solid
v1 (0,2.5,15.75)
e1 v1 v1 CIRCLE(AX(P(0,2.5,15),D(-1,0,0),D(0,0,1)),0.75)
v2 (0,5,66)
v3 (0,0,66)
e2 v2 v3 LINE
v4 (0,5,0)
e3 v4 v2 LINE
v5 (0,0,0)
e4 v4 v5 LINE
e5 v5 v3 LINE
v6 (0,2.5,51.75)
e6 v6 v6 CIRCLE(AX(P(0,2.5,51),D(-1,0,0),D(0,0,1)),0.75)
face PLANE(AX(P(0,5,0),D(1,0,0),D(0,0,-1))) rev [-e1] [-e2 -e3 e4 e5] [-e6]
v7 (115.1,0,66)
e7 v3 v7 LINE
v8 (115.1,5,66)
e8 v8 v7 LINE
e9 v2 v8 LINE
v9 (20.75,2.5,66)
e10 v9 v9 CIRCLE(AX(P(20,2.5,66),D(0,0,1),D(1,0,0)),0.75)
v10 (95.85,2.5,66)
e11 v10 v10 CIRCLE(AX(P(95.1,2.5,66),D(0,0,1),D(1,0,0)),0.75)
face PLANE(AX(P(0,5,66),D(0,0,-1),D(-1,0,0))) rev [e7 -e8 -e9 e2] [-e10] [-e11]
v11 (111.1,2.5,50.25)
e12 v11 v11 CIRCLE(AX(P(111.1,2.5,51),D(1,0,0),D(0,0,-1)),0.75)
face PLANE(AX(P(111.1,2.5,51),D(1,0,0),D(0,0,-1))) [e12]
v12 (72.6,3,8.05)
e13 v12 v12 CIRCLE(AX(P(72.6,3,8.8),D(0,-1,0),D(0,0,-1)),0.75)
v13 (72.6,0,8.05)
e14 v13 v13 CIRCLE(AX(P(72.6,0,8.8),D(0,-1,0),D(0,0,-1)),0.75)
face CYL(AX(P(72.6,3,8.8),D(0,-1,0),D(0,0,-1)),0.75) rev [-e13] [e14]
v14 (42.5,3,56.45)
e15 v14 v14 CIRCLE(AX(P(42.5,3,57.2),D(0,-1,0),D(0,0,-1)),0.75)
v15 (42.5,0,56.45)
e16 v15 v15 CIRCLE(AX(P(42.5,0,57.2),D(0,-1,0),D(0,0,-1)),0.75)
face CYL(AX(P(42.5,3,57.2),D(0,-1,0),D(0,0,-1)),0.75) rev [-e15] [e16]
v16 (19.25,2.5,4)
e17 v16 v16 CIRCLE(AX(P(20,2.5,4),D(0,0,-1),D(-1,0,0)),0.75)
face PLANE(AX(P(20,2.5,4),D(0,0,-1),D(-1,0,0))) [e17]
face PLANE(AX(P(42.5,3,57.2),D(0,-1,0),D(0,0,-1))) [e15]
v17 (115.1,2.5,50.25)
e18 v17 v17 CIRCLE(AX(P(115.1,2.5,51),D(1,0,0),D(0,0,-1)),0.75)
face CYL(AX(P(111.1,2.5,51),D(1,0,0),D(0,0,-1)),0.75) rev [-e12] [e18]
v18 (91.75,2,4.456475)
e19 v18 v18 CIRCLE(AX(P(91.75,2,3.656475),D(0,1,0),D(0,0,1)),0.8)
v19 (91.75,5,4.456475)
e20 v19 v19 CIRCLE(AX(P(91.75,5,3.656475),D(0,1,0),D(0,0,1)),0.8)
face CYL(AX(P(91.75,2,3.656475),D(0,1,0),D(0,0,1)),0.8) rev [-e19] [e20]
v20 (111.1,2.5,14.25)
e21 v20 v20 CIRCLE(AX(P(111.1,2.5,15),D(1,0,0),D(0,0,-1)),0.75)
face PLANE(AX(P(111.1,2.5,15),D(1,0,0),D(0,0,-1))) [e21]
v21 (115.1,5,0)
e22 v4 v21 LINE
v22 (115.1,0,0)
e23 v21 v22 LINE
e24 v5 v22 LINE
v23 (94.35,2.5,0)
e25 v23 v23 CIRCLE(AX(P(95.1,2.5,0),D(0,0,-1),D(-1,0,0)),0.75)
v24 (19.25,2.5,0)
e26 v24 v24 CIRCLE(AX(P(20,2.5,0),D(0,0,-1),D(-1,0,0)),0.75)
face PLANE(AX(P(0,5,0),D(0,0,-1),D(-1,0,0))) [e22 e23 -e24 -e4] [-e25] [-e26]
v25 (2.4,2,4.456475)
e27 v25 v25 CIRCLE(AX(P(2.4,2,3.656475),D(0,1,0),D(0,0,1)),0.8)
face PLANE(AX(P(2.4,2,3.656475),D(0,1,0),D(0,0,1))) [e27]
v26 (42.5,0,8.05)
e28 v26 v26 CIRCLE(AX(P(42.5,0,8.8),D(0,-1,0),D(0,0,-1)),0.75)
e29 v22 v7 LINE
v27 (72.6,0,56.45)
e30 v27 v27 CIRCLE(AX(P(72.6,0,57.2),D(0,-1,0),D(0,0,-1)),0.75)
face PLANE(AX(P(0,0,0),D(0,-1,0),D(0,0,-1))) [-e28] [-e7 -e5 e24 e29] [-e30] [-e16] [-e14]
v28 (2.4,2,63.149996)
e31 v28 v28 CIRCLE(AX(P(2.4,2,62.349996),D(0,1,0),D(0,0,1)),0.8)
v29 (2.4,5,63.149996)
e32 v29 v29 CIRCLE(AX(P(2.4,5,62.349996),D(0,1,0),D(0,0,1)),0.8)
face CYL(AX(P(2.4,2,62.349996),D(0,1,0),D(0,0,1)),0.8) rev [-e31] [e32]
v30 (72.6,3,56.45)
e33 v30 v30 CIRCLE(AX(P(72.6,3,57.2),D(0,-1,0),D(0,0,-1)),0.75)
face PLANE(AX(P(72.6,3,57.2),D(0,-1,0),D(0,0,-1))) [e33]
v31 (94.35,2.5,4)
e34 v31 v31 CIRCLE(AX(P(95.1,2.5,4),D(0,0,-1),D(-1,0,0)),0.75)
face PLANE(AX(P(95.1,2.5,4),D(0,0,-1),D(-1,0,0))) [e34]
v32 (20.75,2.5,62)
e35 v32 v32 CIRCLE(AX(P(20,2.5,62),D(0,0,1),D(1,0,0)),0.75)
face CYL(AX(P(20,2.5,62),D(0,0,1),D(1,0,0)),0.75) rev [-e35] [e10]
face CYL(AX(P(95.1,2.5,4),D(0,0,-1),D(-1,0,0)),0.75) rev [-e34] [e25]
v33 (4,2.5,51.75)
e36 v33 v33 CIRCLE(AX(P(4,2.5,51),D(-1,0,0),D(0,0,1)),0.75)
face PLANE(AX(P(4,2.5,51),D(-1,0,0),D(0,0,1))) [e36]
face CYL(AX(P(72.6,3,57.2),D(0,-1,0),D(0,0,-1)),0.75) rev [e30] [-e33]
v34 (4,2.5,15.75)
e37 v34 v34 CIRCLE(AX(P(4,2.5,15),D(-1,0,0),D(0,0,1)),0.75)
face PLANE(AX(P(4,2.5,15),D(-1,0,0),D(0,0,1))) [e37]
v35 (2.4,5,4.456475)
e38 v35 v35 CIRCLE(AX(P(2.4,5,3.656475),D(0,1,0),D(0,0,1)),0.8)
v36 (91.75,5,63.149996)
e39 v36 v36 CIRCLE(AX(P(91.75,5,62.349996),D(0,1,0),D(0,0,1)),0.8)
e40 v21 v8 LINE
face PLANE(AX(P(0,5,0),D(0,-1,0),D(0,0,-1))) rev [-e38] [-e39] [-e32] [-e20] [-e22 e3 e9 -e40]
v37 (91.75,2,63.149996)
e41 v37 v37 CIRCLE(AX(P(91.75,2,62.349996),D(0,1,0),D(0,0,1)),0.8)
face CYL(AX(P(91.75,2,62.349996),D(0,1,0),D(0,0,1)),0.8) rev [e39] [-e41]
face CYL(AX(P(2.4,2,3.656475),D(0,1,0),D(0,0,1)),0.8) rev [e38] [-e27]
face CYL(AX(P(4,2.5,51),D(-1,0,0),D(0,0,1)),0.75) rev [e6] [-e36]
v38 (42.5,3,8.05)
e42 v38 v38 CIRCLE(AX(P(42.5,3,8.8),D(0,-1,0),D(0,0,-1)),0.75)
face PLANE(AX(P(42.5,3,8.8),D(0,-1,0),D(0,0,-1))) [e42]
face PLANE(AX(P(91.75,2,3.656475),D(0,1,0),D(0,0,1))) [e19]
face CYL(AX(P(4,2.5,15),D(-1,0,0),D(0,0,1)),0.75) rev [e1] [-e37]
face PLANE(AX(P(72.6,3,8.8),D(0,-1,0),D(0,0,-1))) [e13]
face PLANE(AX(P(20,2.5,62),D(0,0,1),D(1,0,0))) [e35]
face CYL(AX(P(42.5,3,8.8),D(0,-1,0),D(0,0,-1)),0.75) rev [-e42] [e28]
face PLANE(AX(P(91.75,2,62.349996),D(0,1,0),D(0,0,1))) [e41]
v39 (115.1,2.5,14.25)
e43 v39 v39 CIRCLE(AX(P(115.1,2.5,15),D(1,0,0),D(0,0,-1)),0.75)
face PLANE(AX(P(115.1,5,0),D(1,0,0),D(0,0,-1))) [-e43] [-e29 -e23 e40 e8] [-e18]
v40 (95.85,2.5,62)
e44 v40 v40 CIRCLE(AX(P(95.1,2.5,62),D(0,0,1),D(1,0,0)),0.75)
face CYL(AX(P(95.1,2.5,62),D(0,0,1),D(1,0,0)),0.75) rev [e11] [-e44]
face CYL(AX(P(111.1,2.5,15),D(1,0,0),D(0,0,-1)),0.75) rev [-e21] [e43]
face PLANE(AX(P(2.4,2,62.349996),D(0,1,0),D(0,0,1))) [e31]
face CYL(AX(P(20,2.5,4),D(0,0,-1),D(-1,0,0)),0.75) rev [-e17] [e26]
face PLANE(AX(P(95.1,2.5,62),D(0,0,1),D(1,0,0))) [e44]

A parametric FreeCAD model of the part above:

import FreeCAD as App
import Part
import Sketcher

doc = App.newDocument("Part")
body = doc.addObject("PartDesign::Body", "Body")

# Sketch on XZ plane
sketch1 = body.newObject("Sketcher::SketchObject", "Sketch")
sketch1.AttachmentSupport = (doc.getObject("XZ_Plane"), [""])
sketch1.MapMode = "FlatFace"
sketch1.addGeometry(Part.LineSegment(App.Vector(0, 0, 0), App.Vector(0, 66, 0)), False)
sketch1.addGeometry(Part.LineSegment(App.Vector(0, 66, 0), App.Vector(115, 66, 0)), False)
sketch1.addGeometry(Part.LineSegment(App.Vector(115, 66, 0), App.Vector(115, 0, 0)), False)
sketch1.addGeometry(Part.LineSegment(App.Vector(115, 0, 0), App.Vector(0, 0, 0)), False)
sketch1.addConstraint(Sketcher.Constraint("Coincident", 0, 2, 1, 1))
sketch1.addConstraint(Sketcher.Constraint("Coincident", 1, 2, 2, 1))
sketch1.addConstraint(Sketcher.Constraint("Coincident", 2, 2, 3, 1))
sketch1.addConstraint(Sketcher.Constraint("Coincident", 3, 2, 0, 1))
sketch1.addConstraint(Sketcher.Constraint("Vertical", 0))
sketch1.addConstraint(Sketcher.Constraint("Horizontal", 1))
sketch1.addConstraint(Sketcher.Constraint("Vertical", 2))
sketch1.addConstraint(Sketcher.Constraint("Horizontal", 3))
sketch1.addConstraint(Sketcher.Constraint("Coincident", 3, 2, -1, 1))
sketch1.addConstraint(Sketcher.Constraint("DistanceY", 0, 1, 0, 2, 66.0))
sketch1.addConstraint(Sketcher.Constraint("DistanceX", 1, 1, 1, 2, 115.1))
pad1 = body.newObject("PartDesign::Pad", "Pad")
pad1.Profile = sketch1
pad1.Length = 5
pad1.Reversed = True

# Sketch on XZ plane
sketch2 = body.newObject("Sketcher::SketchObject", "Sketch001")
sketch2.AttachmentSupport = (doc.getObject("XZ_Plane"), [""])
sketch2.MapMode = "FlatFace"
sketch2.AttachmentOffset = App.Placement(App.Vector(0, 0, -5), App.Rotation())
sketch2.addGeometry(Part.Circle(App.Vector(2.4, 62.3, 0), App.Vector(0, 0, 1), 0.8), False)
sketch2.addGeometry(Part.Circle(App.Vector(2.4, 3.7, 0), App.Vector(0, 0, 1), 0.8), False)
sketch2.addGeometry(Part.Circle(App.Vector(91.8, 62.3, 0), App.Vector(0, 0, 1), 0.8), False)
sketch2.addGeometry(Part.Circle(App.Vector(91.8, 3.7, 0), App.Vector(0, 0, 1), 0.8), False)
sketch2.addConstraint(Sketcher.Constraint("Equal", 0, 1))
sketch2.addConstraint(Sketcher.Constraint("Equal", 1, 2))
sketch2.addConstraint(Sketcher.Constraint("Equal", 2, 3))
sketch2.addConstraint(Sketcher.Constraint("Horizontal", 0, 3, 2, 3))
sketch2.addConstraint(Sketcher.Constraint("Horizontal", 1, 3, 3, 3))
sketch2.addConstraint(Sketcher.Constraint("Vertical", 0, 3, 1, 3))
sketch2.addConstraint(Sketcher.Constraint("Vertical", 2, 3, 3, 3))
sketch2.addConstraint(Sketcher.Constraint("Diameter", 0, 1.6))
sketch2.addConstraint(Sketcher.Constraint("DistanceX", -1, 1, 0, 3, 2.4))
sketch2.addConstraint(Sketcher.Constraint("DistanceX", -1, 1, 2, 3, 91.75))
sketch2.addConstraint(Sketcher.Constraint("DistanceY", 1, 3, 0, 3, 58.693521))
sketch2.addConstraint(Sketcher.Constraint("DistanceY", -1, 1, 0, 3, 62.349996))
pocket1 = body.newObject("PartDesign::Pocket", "Pocket")
pocket1.Profile = sketch2
pocket1.Length = 3
pocket1.Reversed = True

# Sketch on YZ plane
sketch3 = body.newObject("Sketcher::SketchObject", "Sketch002")
sketch3.AttachmentSupport = (doc.getObject("YZ_Plane"), [""])
sketch3.MapMode = "FlatFace"
sketch3.addGeometry(Part.Circle(App.Vector(2.5, 51, 0), App.Vector(0, 0, 1), 0.8), False)
sketch3.addGeometry(Part.Circle(App.Vector(2.5, 15, 0), App.Vector(0, 0, 1), 0.8), False)
sketch3.addConstraint(Sketcher.Constraint("Equal", 0, 1))
sketch3.addConstraint(Sketcher.Constraint("Vertical", 0, 3, 1, 3))
sketch3.addConstraint(Sketcher.Constraint("Diameter", 0, 1.5))
sketch3.addConstraint(Sketcher.Constraint("DistanceY", -1, 1, 0, 3, 51.0))
sketch3.addConstraint(Sketcher.Constraint("DistanceY", -1, 1, 1, 3, 15.0))
sketch3.addConstraint(Sketcher.Constraint("DistanceX", -1, 1, 0, 3, 2.5))
pocket2 = body.newObject("PartDesign::Pocket", "Pocket001")
pocket2.Profile = sketch3
pocket2.Length = 4
pocket2.Reversed = True

# Sketch on YZ plane
sketch4 = body.newObject("Sketcher::SketchObject", "Sketch003")
sketch4.AttachmentSupport = (doc.getObject("YZ_Plane"), [""])
sketch4.MapMode = "FlatFace"
sketch4.AttachmentOffset = App.Placement(App.Vector(0, 0, 111.1), App.Rotation())
sketch4.addGeometry(Part.Circle(App.Vector(2.5, 51, 0), App.Vector(0, 0, 1), 0.8), False)
sketch4.addGeometry(Part.Circle(App.Vector(2.5, 15, 0), App.Vector(0, 0, 1), 0.8), False)
sketch4.addConstraint(Sketcher.Constraint("Equal", 0, 1))
sketch4.addConstraint(Sketcher.Constraint("Vertical", 0, 3, 1, 3))
sketch4.addConstraint(Sketcher.Constraint("Diameter", 0, 1.5))
sketch4.addConstraint(Sketcher.Constraint("DistanceY", -1, 1, 0, 3, 51.0))
sketch4.addConstraint(Sketcher.Constraint("DistanceY", -1, 1, 1, 3, 15.0))
sketch4.addConstraint(Sketcher.Constraint("DistanceX", -1, 1, 0, 3, 2.5))
pocket3 = body.newObject("PartDesign::Pocket", "Pocket002")
pocket3.Profile = sketch4
pocket3.Length = 4
pocket3.Reversed = True

# Sketch on XY plane
sketch5 = body.newObject("Sketcher::SketchObject", "Sketch004")
sketch5.AttachmentSupport = (doc.getObject("XY_Plane"), [""])
sketch5.MapMode = "FlatFace"
sketch5.AttachmentOffset = App.Placement(App.Vector(0, 0, 66), App.Rotation())
sketch5.addGeometry(Part.Circle(App.Vector(20, 2.5, 0), App.Vector(0, 0, 1), 0.8), False)
sketch5.addGeometry(Part.Circle(App.Vector(95.1, 2.5, 0), App.Vector(0, 0, 1), 0.8), False)
sketch5.addConstraint(Sketcher.Constraint("Equal", 0, 1))
sketch5.addConstraint(Sketcher.Constraint("Horizontal", 0, 3, 1, 3))
sketch5.addConstraint(Sketcher.Constraint("Diameter", 0, 1.5))
sketch5.addConstraint(Sketcher.Constraint("DistanceX", -1, 1, 0, 3, 20.0))
sketch5.addConstraint(Sketcher.Constraint("DistanceY", -1, 1, 0, 3, 2.5))
sketch5.addConstraint(Sketcher.Constraint("DistanceX", -1, 1, 1, 3, 95.1))
pocket4 = body.newObject("PartDesign::Pocket", "Pocket003")
pocket4.Profile = sketch5
pocket4.Length = 4

# Sketch on XY plane
sketch6 = body.newObject("Sketcher::SketchObject", "Sketch005")
sketch6.AttachmentSupport = (doc.getObject("XY_Plane"), [""])
sketch6.MapMode = "FlatFace"
sketch6.AttachmentOffset = App.Placement(App.Vector(0, 0, 4), App.Rotation())
sketch6.addGeometry(Part.Circle(App.Vector(20, 2.5, 0), App.Vector(0, 0, 1), 0.8), False)
sketch6.addGeometry(Part.Circle(App.Vector(95.1, 2.5, 0), App.Vector(0, 0, 1), 0.8), False)
sketch6.addConstraint(Sketcher.Constraint("Equal", 0, 1))
sketch6.addConstraint(Sketcher.Constraint("Horizontal", 0, 3, 1, 3))
sketch6.addConstraint(Sketcher.Constraint("Diameter", 0, 1.5))
sketch6.addConstraint(Sketcher.Constraint("DistanceX", -1, 1, 0, 3, 20.0))
sketch6.addConstraint(Sketcher.Constraint("DistanceY", -1, 1, 0, 3, 2.5))
sketch6.addConstraint(Sketcher.Constraint("DistanceX", -1, 1, 1, 3, 95.1))
pocket5 = body.newObject("PartDesign::Pocket", "Pocket004")
pocket5.Profile = sketch6
pocket5.Length = 4

# Sketch on XZ plane
sketch7 = body.newObject("Sketcher::SketchObject", "Sketch006")
sketch7.AttachmentSupport = (doc.getObject("XZ_Plane"), [""])
sketch7.MapMode = "FlatFace"
sketch7.addGeometry(Part.Circle(App.Vector(72.6, 8.8, 0), App.Vector(0, 0, 1), 0.8), False)
sketch7.addGeometry(Part.Circle(App.Vector(42.5, 8.8, 0), App.Vector(0, 0, 1), 0.8), False)
sketch7.addGeometry(Part.Circle(App.Vector(72.6, 57.2, 0), App.Vector(0, 0, 1), 0.8), False)
sketch7.addGeometry(Part.Circle(App.Vector(42.5, 57.2, 0), App.Vector(0, 0, 1), 0.8), False)
sketch7.addConstraint(Sketcher.Constraint("Equal", 0, 1))
sketch7.addConstraint(Sketcher.Constraint("Equal", 1, 2))
sketch7.addConstraint(Sketcher.Constraint("Equal", 2, 3))
sketch7.addConstraint(Sketcher.Constraint("Horizontal", 0, 3, 1, 3))
sketch7.addConstraint(Sketcher.Constraint("Horizontal", 2, 3, 3, 3))
sketch7.addConstraint(Sketcher.Constraint("Vertical", 0, 3, 2, 3))
sketch7.addConstraint(Sketcher.Constraint("Vertical", 1, 3, 3, 3))
sketch7.addConstraint(Sketcher.Constraint("Diameter", 0, 1.5))
sketch7.addConstraint(Sketcher.Constraint("DistanceX", -1, 1, 0, 3, 72.6))
sketch7.addConstraint(Sketcher.Constraint("DistanceY", -1, 1, 0, 3, 8.8))
sketch7.addConstraint(Sketcher.Constraint("DistanceX", -1, 1, 1, 3, 42.5))
sketch7.addConstraint(Sketcher.Constraint("DistanceY", -1, 1, 2, 3, 57.2))
pocket6 = body.newObject("PartDesign::Pocket", "Pocket005")
pocket6.Profile = sketch7
pocket6.Length = 3

doc.recompute()
